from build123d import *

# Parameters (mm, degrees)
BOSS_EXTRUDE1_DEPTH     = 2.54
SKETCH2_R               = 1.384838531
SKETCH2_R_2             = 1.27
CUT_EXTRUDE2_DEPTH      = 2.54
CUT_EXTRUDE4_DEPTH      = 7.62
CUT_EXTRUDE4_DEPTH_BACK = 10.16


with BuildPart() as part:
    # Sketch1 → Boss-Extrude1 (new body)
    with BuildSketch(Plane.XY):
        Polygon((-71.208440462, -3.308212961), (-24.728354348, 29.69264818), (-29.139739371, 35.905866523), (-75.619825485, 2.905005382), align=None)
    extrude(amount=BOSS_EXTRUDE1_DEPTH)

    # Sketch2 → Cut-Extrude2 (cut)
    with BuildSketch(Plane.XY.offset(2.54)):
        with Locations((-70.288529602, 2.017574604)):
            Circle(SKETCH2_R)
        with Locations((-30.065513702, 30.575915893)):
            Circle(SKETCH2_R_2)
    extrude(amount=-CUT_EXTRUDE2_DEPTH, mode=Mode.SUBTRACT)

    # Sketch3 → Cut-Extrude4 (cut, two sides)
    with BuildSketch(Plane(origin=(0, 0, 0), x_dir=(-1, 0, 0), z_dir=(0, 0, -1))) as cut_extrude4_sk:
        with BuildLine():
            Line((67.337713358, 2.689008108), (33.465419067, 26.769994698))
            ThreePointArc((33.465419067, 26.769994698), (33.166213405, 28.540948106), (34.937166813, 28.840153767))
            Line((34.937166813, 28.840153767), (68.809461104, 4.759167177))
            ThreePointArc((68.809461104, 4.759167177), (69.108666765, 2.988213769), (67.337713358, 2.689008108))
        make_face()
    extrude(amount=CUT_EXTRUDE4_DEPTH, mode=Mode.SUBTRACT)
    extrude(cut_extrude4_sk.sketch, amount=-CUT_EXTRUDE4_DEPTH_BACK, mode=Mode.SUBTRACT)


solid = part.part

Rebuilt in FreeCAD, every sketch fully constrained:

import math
import FreeCAD as App
import Part
import Sketcher

V = App.Vector
Q = App.Units.Quantity


def add_polygon(sketch, points):
    """Adds a closed chain of lines whose ends are joined by coincident constraints."""
    first, n = sketch.GeometryCount, len(points)
    for a, b in zip(points, points[1:] + points[:1]):
        sketch.addGeometry(Part.LineSegment(App.Vector(*a, 0), App.Vector(*b, 0)), False)
    for i in range(n):
        sketch.addConstraint(Sketcher.Constraint("Coincident", first + i, 2, first + (i + 1) % n, 1))

doc = App.newDocument("Part")
params = doc.addObject("Spreadsheet::Sheet", "Params")
for row, (alias, value) in enumerate([
    ("sketch1_length", "0.3 in"),
    ("pad1_length", "0.1 in"),
    ("sketch2_diameter", "0.1 in"),
    ("pocket1_length", "0.1 in"),
    ("sketch3_radius", "0.05 in"),
], start=1):
    params.set(f"A{row}", alias)
    params.set(f"B{row}", "=" + value)
    params.setAlias(f"B{row}", alias)

body = doc.addObject("PartDesign::Body", "Body")

sketch1 = body.newObject("Sketcher::SketchObject", "Sketch")
sketch1.AttachmentSupport = (doc.getObject("XY_Plane"), [""])
sketch1.MapMode = "FlatFace"
add_polygon(sketch1, [(-71, -3), (-25, 30), (-29, 36), (-76, 3)])
sketch1.addConstraint([
    Sketcher.Constraint("Perpendicular", 0, 1),
    Sketcher.Constraint("Perpendicular", 1, 2),
    Sketcher.Constraint("Perpendicular", 2, 3),
    Sketcher.Constraint("Distance", 1, Q("0.3 in")),
    Sketcher.Constraint("DistanceX", 3, 2, 1, 2, 42.068701),
    Sketcher.Constraint("DistanceY", -1, 1, 0, 2, 29.692648),
    Sketcher.Constraint("DistanceX", 1, 2, -1, 1, 29.139739),
    Sketcher.Constraint("DistanceY", 0, 2, 1, 2, 6.213218),
])
sketch1.setExpression("Constraints[7]", "Params.sketch1_length")
pad1 = body.newObject("PartDesign::Pad", "Pad")
pad1.Profile = sketch1
pad1.setExpression("Length", "Params.pad1_length")

sketch2 = body.newObject("Sketcher::SketchObject", "Sketch001")
sketch2.AttachmentSupport = (doc.getObject("XY_Plane"), [""])
sketch2.MapMode = "FlatFace"
sketch2.AttachmentOffset = App.Placement(V(0, 0, 0.1 * 25.4), App.Rotation())
sketch2.addGeometry([
    Part.Circle(V(-70.3, 2, 0), V(0, 0, 1), 1.4),
    Part.Circle(V(-30.1, 30.6, 0), V(0, 0, 1), 1.3),
], False)
sketch2.addConstraint([
    Sketcher.Constraint("Diameter", 1, Q("0.1 in")),
    Sketcher.Constraint("Diameter", 0, 2.769677),
    Sketcher.Constraint("DistanceX", 0, 3, -1, 1, 70.28853),
    Sketcher.Constraint("DistanceY", 0, 3, 1, 3, 28.558341),
    Sketcher.Constraint("DistanceY", -1, 1, 0, 3, 2.017575),
    Sketcher.Constraint("DistanceX", 1, 3, -1, 1, 30.065514),
])
sketch2.setExpression("Constraints[0]", "Params.sketch2_diameter")
pocket1 = body.newObject("PartDesign::Pocket", "Pocket")
pocket1.Profile = sketch2
pocket1.setExpression("Length", "Params.pocket1_length")

sketch3 = body.newObject("Sketcher::SketchObject", "Sketch002")
sketch3.AttachmentSupport = (doc.getObject("XY_Plane"), [""])
sketch3.MapMode = "FlatFace"
sketch3.addGeometry([
    Part.LineSegment(V(-33.5, 26.8, 0), V(-67.3, 2.7, 0)),
    Part.ArcOfCircle(Part.Circle(V(-68.1, 3.7, 0), V(0, 0, 1), 1.3), math.radians(125), math.radians(305)),
    Part.LineSegment(V(-68.8, 4.8, 0), V(-34.9, 28.8, 0)),
    Part.ArcOfCircle(Part.Circle(V(-34.2, 27.8, 0), V(0, 0, 1), 1.3), math.radians(-55), math.radians(125)),
], False)
sketch3.addConstraint([
    Sketcher.Constraint("Tangent", 0, 2, 1, 2),
    Sketcher.Constraint("Tangent", 1, 1, 2, 1),
    Sketcher.Constraint("Tangent", 2, 2, 3, 2),
    Sketcher.Constraint("Tangent", 3, 1, 0, 1),
    Sketcher.Constraint("Equal", 1, 3),
    Sketcher.Constraint("Radius", 1, Q("0.05 in")),
    Sketcher.Constraint("Distance", 0, 41.559911),
    Sketcher.Constraint("DistanceY", -1, 1, 0, 2, 2.689008),
    Sketcher.Constraint("DistanceX", 1, 1, -1, 1, 68.809461),
    Sketcher.Constraint("DistanceX", 3, 1, -1, 1, 33.465419),
])
sketch3.setExpression("Constraints[5]", "Params.sketch3_radius")
pocket2 = body.newObject("PartDesign::Pocket", "Pocket001")
pocket2.Profile = sketch3
pocket2.Type = "ThroughAll"
pocket2.Midplane = True

doc.recompute()
